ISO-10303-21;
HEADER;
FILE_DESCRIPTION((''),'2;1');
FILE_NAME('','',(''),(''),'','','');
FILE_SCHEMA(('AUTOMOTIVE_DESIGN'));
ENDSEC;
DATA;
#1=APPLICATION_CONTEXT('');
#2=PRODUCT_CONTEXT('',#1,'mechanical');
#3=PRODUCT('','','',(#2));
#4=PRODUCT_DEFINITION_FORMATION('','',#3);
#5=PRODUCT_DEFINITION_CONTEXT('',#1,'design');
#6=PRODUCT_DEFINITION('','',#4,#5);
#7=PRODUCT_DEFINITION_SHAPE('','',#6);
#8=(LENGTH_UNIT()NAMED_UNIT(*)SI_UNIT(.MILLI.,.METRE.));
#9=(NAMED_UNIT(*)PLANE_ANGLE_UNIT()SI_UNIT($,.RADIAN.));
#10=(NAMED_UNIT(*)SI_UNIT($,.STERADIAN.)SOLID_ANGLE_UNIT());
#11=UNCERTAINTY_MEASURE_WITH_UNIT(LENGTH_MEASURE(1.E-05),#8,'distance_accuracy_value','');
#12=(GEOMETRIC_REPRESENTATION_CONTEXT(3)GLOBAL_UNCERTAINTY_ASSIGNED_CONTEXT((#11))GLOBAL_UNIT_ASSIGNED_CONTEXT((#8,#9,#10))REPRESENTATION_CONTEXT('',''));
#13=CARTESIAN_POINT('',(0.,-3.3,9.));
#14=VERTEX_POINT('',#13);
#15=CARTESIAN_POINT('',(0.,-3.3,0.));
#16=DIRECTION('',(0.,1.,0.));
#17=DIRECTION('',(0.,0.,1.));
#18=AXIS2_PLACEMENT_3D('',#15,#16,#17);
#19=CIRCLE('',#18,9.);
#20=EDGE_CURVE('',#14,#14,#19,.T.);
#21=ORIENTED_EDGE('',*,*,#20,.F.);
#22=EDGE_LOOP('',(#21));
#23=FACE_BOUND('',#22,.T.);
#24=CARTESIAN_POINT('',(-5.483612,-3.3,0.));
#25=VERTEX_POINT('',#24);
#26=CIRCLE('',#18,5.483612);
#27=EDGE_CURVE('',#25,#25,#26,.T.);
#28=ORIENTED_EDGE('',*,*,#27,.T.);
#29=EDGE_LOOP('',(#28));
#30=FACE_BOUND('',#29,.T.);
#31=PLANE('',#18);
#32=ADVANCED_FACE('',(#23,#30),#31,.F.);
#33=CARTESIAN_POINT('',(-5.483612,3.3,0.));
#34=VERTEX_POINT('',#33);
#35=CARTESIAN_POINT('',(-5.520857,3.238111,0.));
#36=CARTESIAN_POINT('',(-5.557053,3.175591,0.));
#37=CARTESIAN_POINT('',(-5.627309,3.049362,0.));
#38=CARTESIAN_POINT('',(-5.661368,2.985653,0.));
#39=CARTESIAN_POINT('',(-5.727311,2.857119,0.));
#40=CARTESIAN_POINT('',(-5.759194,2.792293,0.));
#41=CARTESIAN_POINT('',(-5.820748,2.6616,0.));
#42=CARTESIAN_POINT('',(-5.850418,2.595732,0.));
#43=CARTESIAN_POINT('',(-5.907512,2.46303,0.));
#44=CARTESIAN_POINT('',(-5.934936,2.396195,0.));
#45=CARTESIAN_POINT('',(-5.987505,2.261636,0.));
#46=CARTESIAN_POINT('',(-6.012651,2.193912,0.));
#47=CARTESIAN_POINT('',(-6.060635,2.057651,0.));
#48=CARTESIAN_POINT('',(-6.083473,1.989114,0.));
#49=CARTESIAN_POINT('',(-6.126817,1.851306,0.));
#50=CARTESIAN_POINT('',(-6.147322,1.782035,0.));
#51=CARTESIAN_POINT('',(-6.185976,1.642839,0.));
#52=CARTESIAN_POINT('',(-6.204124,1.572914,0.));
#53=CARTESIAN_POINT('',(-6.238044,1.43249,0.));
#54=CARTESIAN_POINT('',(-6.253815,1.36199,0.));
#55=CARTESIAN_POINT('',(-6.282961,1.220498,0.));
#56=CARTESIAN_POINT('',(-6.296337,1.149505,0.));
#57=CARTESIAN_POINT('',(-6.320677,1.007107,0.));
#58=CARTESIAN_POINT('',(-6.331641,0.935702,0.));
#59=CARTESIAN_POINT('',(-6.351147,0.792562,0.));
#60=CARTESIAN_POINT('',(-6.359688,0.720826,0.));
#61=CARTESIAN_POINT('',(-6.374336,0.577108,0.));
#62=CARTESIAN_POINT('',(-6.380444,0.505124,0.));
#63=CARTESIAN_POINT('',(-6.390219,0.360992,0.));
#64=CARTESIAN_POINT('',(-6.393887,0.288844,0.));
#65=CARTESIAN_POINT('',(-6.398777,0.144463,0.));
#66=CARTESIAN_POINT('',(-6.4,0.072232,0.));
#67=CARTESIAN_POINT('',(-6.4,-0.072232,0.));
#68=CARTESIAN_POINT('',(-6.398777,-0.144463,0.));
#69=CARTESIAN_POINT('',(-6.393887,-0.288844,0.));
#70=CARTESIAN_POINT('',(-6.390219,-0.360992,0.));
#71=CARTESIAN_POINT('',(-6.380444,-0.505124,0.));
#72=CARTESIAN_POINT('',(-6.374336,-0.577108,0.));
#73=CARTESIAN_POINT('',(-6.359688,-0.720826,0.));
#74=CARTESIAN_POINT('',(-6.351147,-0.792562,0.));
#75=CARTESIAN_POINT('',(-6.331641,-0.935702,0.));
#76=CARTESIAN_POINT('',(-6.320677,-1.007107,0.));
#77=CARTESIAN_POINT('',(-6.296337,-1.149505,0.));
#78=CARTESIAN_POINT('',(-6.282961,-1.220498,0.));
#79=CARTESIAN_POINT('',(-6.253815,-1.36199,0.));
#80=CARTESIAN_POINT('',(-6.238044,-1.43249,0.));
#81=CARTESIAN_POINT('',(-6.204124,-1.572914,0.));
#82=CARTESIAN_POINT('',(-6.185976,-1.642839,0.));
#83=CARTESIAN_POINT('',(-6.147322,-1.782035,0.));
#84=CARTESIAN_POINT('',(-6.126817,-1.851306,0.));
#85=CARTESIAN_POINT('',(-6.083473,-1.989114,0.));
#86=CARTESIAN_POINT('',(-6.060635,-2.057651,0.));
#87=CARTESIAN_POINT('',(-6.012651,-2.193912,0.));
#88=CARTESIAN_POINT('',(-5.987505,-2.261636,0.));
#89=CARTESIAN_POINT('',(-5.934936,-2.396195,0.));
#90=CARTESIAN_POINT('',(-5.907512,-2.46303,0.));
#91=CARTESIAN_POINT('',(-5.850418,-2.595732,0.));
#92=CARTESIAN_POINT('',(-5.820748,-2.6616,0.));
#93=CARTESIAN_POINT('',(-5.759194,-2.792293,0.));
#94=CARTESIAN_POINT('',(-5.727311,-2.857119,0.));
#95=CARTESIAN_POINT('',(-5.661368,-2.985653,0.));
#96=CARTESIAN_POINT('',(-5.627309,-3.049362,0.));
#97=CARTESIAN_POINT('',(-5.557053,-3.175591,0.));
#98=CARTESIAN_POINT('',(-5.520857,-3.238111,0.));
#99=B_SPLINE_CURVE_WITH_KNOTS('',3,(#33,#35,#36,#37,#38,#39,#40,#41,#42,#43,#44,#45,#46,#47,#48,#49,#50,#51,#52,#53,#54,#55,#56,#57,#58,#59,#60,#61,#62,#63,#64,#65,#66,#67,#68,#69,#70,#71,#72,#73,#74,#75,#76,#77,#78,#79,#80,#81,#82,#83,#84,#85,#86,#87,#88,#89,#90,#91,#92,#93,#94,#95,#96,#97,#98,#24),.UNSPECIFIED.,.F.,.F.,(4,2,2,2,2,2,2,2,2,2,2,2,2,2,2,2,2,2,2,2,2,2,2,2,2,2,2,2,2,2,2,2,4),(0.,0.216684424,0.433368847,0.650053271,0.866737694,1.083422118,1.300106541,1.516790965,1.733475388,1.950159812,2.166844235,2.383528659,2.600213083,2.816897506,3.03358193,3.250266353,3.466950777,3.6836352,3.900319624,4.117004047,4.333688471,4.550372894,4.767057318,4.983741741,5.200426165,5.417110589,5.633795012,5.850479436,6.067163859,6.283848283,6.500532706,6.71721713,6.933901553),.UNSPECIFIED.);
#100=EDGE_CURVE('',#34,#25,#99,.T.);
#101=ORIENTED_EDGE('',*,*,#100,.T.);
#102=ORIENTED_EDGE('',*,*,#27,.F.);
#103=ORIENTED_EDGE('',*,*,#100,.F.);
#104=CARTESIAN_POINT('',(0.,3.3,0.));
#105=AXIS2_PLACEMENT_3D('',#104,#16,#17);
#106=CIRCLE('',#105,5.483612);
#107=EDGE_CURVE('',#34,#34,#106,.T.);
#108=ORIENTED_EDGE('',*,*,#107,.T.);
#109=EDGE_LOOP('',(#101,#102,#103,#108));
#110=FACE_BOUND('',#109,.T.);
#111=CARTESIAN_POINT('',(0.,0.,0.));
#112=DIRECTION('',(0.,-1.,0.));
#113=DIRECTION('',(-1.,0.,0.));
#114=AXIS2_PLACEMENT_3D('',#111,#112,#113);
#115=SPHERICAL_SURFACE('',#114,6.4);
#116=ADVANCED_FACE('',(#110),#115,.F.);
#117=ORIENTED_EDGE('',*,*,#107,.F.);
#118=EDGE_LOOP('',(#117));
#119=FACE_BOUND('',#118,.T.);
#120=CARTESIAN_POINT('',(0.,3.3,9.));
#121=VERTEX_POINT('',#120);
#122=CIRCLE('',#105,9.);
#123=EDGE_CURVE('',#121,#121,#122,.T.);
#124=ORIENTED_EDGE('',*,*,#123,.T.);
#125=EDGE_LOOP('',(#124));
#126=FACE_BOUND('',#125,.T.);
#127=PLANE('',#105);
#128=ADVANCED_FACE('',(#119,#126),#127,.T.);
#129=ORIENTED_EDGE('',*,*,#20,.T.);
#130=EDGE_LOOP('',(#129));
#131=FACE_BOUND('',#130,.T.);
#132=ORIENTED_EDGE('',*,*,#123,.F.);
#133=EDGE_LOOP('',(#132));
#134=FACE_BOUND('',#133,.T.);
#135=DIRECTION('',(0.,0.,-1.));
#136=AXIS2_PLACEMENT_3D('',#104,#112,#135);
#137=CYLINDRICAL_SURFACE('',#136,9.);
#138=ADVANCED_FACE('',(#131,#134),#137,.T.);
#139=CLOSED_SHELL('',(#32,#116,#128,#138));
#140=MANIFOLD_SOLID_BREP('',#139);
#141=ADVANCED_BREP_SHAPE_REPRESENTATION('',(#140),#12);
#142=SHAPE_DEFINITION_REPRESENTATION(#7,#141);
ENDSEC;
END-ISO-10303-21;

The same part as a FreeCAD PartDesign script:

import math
import FreeCAD as App
import Part
import Sketcher

doc = App.newDocument("Part")
body = doc.addObject("PartDesign::Body", "Body")

sketch1 = body.newObject("Sketcher::SketchObject", "Sketch")
sketch1.AttachmentSupport = (doc.getObject("XZ_Plane"), [""])
sketch1.MapMode = "FlatFace"
sketch1.addGeometry(Part.Circle(App.Vector(0, 0, 0), App.Vector(0, 0, 1), 9), False)
sketch1.addConstraint([
    Sketcher.Constraint("Coincident", 0, 3, -1, 1),
    Sketcher.Constraint("Diameter", 0, 18.0),
])
pad1 = body.newObject("PartDesign::Pad", "Pad")
pad1.Profile = sketch1
pad1.Length = 6.6
pad1.Midplane = True

sketch2 = body.newObject("Sketcher::SketchObject", "Sketch001")
sketch2.AttachmentSupport = (doc.getObject("XY_Plane"), [""])
sketch2.MapMode = "FlatFace"
sketch2.addGeometry([
    Part.LineSegment(App.Vector(0, 6, 0), App.Vector(0, -6, 0)),
    Part.ArcOfCircle(Part.Circle(App.Vector(0, 0, 0), App.Vector(0, 0, 1), 6), math.radians(-90), math.radians(90)),
], False)
sketch2.addConstraint([
    Sketcher.Constraint("Coincident", 0, 1, 1, 2),
    Sketcher.Constraint("Coincident", 1, 1, 0, 2),
    Sketcher.Constraint("Vertical", 0),
    Sketcher.Constraint("Coincident", 1, 3, -1, 1),
    Sketcher.Constraint("PointOnObject", 0, 1, -2),
    Sketcher.Constraint("Radius", 1, 6.4),
])
groove = body.newObject("PartDesign::Groove", "Groove")
groove.Profile = sketch2
groove.ReferenceAxis = (sketch2, ["V_Axis"])
groove.Angle = 360

doc.recompute()
